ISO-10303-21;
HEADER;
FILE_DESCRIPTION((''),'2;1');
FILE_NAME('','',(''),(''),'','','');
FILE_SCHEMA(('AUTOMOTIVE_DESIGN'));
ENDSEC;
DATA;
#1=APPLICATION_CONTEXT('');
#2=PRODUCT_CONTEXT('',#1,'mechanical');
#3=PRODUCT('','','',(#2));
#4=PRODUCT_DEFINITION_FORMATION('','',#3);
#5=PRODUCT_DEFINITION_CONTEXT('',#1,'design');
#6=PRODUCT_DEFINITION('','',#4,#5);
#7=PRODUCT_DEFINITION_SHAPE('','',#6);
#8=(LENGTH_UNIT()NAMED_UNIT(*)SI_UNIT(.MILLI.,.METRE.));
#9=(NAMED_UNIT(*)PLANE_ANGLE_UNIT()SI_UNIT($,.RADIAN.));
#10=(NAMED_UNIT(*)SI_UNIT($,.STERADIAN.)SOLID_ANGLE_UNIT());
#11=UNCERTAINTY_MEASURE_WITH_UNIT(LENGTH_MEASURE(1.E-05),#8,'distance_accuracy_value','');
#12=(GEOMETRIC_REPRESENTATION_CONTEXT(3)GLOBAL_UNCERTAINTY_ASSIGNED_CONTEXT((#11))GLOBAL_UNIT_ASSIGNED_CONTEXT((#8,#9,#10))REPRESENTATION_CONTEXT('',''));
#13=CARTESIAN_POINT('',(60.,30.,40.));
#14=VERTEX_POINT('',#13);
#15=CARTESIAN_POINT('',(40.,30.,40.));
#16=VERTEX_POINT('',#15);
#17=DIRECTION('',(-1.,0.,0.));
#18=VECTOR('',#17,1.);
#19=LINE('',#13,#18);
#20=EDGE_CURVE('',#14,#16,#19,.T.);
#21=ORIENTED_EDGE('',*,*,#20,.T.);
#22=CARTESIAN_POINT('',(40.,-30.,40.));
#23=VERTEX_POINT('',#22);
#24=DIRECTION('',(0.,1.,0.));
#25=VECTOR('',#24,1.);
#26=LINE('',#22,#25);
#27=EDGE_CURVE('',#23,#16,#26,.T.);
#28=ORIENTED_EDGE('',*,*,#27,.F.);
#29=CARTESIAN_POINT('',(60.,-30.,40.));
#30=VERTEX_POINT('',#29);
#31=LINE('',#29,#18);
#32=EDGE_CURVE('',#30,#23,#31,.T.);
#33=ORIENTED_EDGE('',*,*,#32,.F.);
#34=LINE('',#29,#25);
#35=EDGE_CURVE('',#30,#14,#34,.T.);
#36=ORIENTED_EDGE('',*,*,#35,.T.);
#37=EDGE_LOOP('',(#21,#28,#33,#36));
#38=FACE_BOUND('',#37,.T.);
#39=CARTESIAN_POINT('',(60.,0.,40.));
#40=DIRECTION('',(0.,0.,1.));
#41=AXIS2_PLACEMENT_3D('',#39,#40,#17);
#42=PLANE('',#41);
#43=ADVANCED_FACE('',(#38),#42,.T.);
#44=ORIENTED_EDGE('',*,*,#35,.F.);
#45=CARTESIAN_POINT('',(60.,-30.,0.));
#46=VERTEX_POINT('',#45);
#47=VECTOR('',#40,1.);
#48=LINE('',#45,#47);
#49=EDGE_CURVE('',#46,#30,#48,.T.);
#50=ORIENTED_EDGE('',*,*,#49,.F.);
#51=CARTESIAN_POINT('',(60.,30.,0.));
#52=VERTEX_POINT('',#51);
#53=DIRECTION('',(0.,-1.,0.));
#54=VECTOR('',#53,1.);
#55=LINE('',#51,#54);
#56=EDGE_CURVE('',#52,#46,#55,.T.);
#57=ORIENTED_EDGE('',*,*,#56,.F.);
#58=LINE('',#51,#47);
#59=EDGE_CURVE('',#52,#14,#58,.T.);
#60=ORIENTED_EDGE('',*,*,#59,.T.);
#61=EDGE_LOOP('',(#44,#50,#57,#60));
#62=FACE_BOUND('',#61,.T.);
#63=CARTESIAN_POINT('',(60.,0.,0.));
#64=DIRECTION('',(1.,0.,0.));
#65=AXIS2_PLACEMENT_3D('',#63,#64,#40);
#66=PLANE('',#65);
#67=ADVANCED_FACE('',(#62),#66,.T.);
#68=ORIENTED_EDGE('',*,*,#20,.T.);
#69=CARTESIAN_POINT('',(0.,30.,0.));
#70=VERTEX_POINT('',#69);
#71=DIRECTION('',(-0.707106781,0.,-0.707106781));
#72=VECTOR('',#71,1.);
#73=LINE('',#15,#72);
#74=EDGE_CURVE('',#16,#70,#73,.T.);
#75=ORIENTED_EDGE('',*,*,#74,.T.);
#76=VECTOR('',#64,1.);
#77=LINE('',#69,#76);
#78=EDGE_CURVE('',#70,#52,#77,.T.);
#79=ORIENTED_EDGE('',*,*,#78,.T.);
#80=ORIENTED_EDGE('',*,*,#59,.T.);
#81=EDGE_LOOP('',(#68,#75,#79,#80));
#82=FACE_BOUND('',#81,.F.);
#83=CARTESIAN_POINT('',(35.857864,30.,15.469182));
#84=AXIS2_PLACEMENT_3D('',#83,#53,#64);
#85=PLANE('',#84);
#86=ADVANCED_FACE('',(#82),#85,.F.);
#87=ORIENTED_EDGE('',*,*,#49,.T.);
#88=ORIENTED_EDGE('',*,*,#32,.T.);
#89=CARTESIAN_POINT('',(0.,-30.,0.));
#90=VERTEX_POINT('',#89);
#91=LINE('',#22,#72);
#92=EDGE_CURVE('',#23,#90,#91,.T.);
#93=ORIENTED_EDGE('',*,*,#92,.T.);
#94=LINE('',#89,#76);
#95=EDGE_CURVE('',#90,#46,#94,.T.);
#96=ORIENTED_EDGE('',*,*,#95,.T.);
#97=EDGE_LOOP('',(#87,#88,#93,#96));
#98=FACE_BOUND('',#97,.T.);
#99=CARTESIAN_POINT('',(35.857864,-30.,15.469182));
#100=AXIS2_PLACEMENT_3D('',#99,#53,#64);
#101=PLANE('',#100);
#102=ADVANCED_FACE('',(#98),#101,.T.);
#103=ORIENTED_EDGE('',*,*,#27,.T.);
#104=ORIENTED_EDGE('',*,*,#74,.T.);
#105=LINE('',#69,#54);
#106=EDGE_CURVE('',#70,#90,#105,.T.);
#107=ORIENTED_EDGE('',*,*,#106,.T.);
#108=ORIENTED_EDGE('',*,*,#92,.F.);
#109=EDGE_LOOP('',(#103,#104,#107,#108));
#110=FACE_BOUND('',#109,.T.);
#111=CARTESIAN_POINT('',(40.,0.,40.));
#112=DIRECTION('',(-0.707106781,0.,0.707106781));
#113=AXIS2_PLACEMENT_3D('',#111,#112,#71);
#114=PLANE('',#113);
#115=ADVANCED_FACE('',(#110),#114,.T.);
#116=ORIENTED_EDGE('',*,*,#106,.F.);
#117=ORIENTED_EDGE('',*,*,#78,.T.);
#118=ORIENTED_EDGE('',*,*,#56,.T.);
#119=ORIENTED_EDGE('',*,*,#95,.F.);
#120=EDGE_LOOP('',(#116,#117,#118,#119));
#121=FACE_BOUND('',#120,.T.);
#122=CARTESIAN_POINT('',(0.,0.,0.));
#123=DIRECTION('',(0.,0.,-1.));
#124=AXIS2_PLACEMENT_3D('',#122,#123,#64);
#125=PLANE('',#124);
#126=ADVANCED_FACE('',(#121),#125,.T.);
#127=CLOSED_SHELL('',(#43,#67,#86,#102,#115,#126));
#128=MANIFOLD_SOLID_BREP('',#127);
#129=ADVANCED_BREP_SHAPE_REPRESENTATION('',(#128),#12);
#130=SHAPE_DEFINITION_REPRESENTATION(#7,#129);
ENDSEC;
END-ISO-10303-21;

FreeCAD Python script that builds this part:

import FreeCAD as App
import Part
import Sketcher
Q = App.Units.Quantity


def add_polygon(sketch, points):
    """Adds a closed chain of lines whose ends are joined by coincident constraints."""
    first, n = sketch.GeometryCount, len(points)
    for a, b in zip(points, points[1:] + points[:1]):
        sketch.addGeometry(Part.LineSegment(App.Vector(*a, 0), App.Vector(*b, 0)), False)
    for i in range(n):
        sketch.addConstraint(Sketcher.Constraint("Coincident", first + i, 2, first + (i + 1) % n, 1))

doc = App.newDocument("Part")
params = doc.addObject("Spreadsheet::Sheet", "Params")
for row, (alias, value) in enumerate([
    ("sketch1_width", "60 mm"),
    ("sketch1_width2", "20 mm"),
    ("sketch1_height", "40 mm"),
    ("pad1_length", "30 mm"),
    ("pad1_length2", "30 mm"),
], start=1):
    params.set(f"A{row}", alias)
    params.set(f"B{row}", "=" + value)
    params.setAlias(f"B{row}", alias)

body = doc.addObject("PartDesign::Body", "Body")

# Sketch on XZ plane
sketch1 = doc.addObject("Sketcher::SketchObject", "Sketch")
body.addObject(sketch1)
sketch1.AttachmentSupport = (doc.XZ_Plane, [""])
sketch1.MapMode = "FlatFace"
add_polygon(sketch1, [(40, 40), (0, 0), (60, 0), (60, 40)])  # lines 0-3
sketch1.addConstraint(Sketcher.Constraint("Horizontal", 1))
sketch1.addConstraint(Sketcher.Constraint("Vertical", 2))
sketch1.addConstraint(Sketcher.Constraint("Horizontal", 3))
sketch1.addConstraint(Sketcher.Constraint("Coincident", 0, 2, -1, 1))
sketch1.addConstraint(Sketcher.Constraint("DistanceX", 1, 1, 1, 2, Q("60 mm")))
sketch1.addConstraint(Sketcher.Constraint("DistanceX", 3, 2, 3, 1, Q("20 mm")))
sketch1.addConstraint(Sketcher.Constraint("DistanceY", 2, 1, 2, 2, Q("40 mm")))
sketch1.setExpression("Constraints[8]", "Params.sketch1_width")
sketch1.setExpression("Constraints[9]", "Params.sketch1_width2")
sketch1.setExpression("Constraints[10]", "Params.sketch1_height")
pad1 = doc.addObject("PartDesign::Pad", "Pad")
body.addObject(pad1)
pad1.Profile = sketch1
pad1.Type = "TwoLengths"
pad1.setExpression("Length", "Params.pad1_length")
pad1.setExpression("Length2", "Params.pad1_length2")

doc.recompute()
